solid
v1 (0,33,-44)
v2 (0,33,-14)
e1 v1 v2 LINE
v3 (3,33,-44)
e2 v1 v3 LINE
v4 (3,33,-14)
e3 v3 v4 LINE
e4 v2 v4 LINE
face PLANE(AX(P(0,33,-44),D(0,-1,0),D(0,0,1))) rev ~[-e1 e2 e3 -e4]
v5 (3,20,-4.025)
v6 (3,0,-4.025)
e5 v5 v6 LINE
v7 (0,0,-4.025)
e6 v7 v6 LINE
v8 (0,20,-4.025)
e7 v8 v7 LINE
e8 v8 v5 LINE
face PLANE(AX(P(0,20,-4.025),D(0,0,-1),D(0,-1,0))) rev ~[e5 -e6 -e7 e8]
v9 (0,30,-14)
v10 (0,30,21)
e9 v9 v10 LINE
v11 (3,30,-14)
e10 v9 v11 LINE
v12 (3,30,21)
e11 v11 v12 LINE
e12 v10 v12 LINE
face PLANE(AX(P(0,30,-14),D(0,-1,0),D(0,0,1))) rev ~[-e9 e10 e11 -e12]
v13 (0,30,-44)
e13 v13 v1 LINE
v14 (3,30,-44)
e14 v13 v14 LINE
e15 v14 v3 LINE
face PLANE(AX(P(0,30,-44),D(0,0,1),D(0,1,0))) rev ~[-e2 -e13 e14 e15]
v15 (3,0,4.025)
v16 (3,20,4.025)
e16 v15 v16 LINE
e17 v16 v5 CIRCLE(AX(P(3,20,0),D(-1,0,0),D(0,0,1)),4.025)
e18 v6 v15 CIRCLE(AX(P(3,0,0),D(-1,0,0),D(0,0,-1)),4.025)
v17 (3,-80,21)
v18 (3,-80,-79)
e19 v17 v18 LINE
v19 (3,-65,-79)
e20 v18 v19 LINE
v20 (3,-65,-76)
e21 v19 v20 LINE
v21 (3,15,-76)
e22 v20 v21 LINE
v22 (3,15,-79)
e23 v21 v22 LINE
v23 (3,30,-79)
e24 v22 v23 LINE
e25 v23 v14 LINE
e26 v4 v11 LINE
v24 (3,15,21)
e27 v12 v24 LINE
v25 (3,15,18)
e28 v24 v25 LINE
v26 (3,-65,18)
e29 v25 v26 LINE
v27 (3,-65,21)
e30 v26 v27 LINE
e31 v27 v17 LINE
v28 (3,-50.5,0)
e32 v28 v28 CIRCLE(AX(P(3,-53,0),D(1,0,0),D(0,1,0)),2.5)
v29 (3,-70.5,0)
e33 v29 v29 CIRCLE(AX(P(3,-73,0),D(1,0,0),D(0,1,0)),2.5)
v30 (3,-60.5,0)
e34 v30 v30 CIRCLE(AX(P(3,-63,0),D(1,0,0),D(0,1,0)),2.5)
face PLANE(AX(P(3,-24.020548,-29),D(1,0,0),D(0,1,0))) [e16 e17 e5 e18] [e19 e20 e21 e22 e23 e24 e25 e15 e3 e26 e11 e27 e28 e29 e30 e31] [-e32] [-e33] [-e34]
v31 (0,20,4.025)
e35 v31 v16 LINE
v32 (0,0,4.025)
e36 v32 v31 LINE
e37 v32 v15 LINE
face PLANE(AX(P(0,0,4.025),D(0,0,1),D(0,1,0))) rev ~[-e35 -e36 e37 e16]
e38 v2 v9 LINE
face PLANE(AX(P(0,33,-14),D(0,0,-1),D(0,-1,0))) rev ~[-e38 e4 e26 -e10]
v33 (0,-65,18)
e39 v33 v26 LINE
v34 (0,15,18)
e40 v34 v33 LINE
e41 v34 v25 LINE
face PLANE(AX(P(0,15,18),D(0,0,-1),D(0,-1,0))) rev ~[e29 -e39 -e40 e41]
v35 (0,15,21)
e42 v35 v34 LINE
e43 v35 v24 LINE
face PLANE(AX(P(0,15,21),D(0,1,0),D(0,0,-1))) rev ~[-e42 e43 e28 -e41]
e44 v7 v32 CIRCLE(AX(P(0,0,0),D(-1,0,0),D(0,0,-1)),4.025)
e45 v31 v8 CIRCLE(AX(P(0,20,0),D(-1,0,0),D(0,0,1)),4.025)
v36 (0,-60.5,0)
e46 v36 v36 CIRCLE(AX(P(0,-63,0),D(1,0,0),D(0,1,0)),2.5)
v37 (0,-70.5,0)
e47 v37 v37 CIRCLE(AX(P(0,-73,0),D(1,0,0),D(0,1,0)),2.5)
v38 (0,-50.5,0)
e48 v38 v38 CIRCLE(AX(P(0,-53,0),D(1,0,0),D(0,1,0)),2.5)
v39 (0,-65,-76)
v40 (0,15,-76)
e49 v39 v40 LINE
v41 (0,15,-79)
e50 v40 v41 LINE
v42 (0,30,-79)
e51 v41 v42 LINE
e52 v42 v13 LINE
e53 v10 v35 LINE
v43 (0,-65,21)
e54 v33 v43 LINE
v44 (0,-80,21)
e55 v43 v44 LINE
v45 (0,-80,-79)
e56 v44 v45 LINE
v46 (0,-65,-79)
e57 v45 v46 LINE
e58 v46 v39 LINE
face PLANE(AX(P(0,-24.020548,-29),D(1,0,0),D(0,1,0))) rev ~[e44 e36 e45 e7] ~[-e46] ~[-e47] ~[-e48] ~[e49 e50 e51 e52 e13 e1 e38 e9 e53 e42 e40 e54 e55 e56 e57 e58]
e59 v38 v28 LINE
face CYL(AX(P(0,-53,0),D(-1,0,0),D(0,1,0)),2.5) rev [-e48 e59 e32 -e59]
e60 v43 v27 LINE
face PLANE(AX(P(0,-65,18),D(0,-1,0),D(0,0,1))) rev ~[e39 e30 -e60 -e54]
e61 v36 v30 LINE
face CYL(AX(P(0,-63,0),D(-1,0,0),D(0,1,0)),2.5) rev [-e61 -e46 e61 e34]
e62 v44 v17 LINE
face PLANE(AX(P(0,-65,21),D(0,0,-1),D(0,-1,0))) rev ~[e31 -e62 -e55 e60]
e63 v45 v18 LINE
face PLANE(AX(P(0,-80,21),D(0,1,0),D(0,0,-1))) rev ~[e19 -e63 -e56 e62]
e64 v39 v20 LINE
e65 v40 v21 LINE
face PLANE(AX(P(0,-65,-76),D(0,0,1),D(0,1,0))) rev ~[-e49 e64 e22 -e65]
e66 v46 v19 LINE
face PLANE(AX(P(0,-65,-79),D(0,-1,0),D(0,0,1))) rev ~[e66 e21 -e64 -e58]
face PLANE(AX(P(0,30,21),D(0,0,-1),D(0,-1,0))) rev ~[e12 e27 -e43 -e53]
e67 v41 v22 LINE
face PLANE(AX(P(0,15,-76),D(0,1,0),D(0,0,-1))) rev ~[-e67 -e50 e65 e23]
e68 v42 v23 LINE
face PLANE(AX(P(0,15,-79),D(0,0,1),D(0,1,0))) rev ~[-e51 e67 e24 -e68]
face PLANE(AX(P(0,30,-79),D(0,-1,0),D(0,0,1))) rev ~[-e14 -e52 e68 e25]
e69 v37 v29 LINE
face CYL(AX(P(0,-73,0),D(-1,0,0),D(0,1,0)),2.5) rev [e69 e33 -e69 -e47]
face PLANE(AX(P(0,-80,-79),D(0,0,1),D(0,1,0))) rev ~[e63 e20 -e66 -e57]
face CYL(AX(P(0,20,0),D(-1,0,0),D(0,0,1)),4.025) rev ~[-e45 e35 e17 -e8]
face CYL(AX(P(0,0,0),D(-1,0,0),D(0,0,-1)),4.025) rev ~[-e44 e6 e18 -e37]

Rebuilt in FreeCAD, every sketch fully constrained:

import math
import FreeCAD as App
import Part
import Sketcher


def add_polygon(sketch, points):
    """Adds a closed chain of lines whose ends are joined by coincident constraints."""
    first, n = sketch.GeometryCount, len(points)
    for a, b in zip(points, points[1:] + points[:1]):
        sketch.addGeometry(Part.LineSegment(App.Vector(*a, 0), App.Vector(*b, 0)), False)
    for i in range(n):
        sketch.addConstraint(Sketcher.Constraint("Coincident", first + i, 2, first + (i + 1) % n, 1))

doc = App.newDocument("Part")
body = doc.addObject("PartDesign::Body", "Body")

# Sketch on YZ plane
sketch1 = doc.addObject("Sketcher::SketchObject", "Sketch")
body.addObject(sketch1)
sketch1.AttachmentSupport = (doc.YZ_Plane, [""])
sketch1.MapMode = "FlatFace"
add_polygon(sketch1, [(30, -14), (30, 21), (15, 21), (15, 18), (-65, 18), (-65, 21), (-80, 21), (-80, -79), (-65, -79), (-65, -76), (15, -76), (15, -79), (30, -79), (30, -44), (33, -44), (33, -14)])  # lines 0-15
sketch1.addGeometry(Part.Circle(App.Vector(-73, 0, 0), App.Vector(0, 0, 1), 2.5), False)  # 16
sketch1.addGeometry(Part.Circle(App.Vector(-63, 0, 0), App.Vector(0, 0, 1), 2.5), False)  # 17
sketch1.addGeometry(Part.Circle(App.Vector(-53, 0, 0), App.Vector(0, 0, 1), 2.5), False)  # 18
sketch1.addGeometry(Part.ArcOfCircle(Part.Circle(App.Vector(0, 0, 0), App.Vector(0, 0, 1), 4), math.radians(90), math.radians(270)), False)  # 19
sketch1.addGeometry(Part.LineSegment(App.Vector(0, 4, 0), App.Vector(20, 4, 0)), False)  # 20
sketch1.addGeometry(Part.ArcOfCircle(Part.Circle(App.Vector(20, 0, 0), App.Vector(0, 0, 1), 4), math.radians(-90), math.radians(90)), False)  # 21
sketch1.addGeometry(Part.LineSegment(App.Vector(20, -4, 0), App.Vector(0, -4, 0)), False)  # 22
sketch1.addConstraint(Sketcher.Constraint("Tangent", 19, 1, 20, 1))
sketch1.addConstraint(Sketcher.Constraint("Tangent", 20, 2, 21, 2))
sketch1.addConstraint(Sketcher.Constraint("Tangent", 21, 1, 22, 1))
sketch1.addConstraint(Sketcher.Constraint("Tangent", 22, 2, 19, 2))
sketch1.addConstraint(Sketcher.Constraint("Vertical", 0))
sketch1.addConstraint(Sketcher.Constraint("Horizontal", 1))
sketch1.addConstraint(Sketcher.Constraint("Vertical", 2))
sketch1.addConstraint(Sketcher.Constraint("Horizontal", 3))
sketch1.addConstraint(Sketcher.Constraint("Vertical", 4))
sketch1.addConstraint(Sketcher.Constraint("Horizontal", 5))
sketch1.addConstraint(Sketcher.Constraint("Vertical", 6))
sketch1.addConstraint(Sketcher.Constraint("Horizontal", 7))
sketch1.addConstraint(Sketcher.Constraint("Vertical", 8))
sketch1.addConstraint(Sketcher.Constraint("Horizontal", 9))
sketch1.addConstraint(Sketcher.Constraint("Vertical", 10))
sketch1.addConstraint(Sketcher.Constraint("Horizontal", 11))
sketch1.addConstraint(Sketcher.Constraint("Vertical", 12))
sketch1.addConstraint(Sketcher.Constraint("Horizontal", 13))
sketch1.addConstraint(Sketcher.Constraint("Vertical", 14))
sketch1.addConstraint(Sketcher.Constraint("Horizontal", 15))
sketch1.addConstraint(Sketcher.Constraint("Horizontal", 20))
sketch1.addConstraint(Sketcher.Constraint("Horizontal", 22))
sketch1.addConstraint(Sketcher.Constraint("Coincident", 19, 3, -1, 1))
sketch1.addConstraint(Sketcher.Constraint("Equal", 16, 17))
sketch1.addConstraint(Sketcher.Constraint("Equal", 17, 18))
sketch1.addConstraint(Sketcher.Constraint("PointOnObject", 16, 3, -1))
sketch1.addConstraint(Sketcher.Constraint("PointOnObject", 17, 3, -1))
sketch1.addConstraint(Sketcher.Constraint("PointOnObject", 18, 3, -1))
sketch1.addConstraint(Sketcher.Constraint("Horizontal", 1, 2, 4, 2))
sketch1.addConstraint(Sketcher.Constraint("Horizontal", 7, 2, 10, 2))
sketch1.addConstraint(Sketcher.Constraint("Vertical", 4, 2, 7, 2))
sketch1.addConstraint(Sketcher.Constraint("Vertical", 2, 2, 9, 2))
sketch1.addConstraint(Sketcher.Constraint("Vertical", 0, 2, 11, 2))
sketch1.addConstraint(Sketcher.Constraint("Equal", 1, 5))
sketch1.addConstraint(Sketcher.Constraint("Equal", 15, 2))
sketch1.addConstraint(Sketcher.Constraint("Equal", 4, 8))
sketch1.addConstraint(Sketcher.Constraint("Equal", 0, 12))
sketch1.addConstraint(Sketcher.Constraint("Diameter", 16, 5.0))
sketch1.addConstraint(Sketcher.Constraint("DistanceX", 1, 2, 1, 1, 15.0))
sketch1.addConstraint(Sketcher.Constraint("DistanceX", 3, 2, 3, 1, 80.0))
sketch1.addConstraint(Sketcher.Constraint("DistanceX", 13, 1, 13, 2, 3.0))
sketch1.addConstraint(Sketcher.Constraint("DistanceX", 20, 1, 20, 2, 20.0))
sketch1.addConstraint(Sketcher.Constraint("DistanceY", 0, 1, 0, 2, 35.0))
sketch1.addConstraint(Sketcher.Constraint("DistanceY", 6, 2, 6, 1, 100.0))
sketch1.addConstraint(Sketcher.Constraint("DistanceX", 16, 3, -1, 1, 73.0))
sketch1.addConstraint(Sketcher.Constraint("DistanceX", 17, 3, -1, 1, 63.0))
sketch1.addConstraint(Sketcher.Constraint("DistanceX", 18, 3, -1, 1, 53.0))
sketch1.addConstraint(Sketcher.Constraint("DistanceX", -1, 1, 0, 2, 30.0))
sketch1.addConstraint(Sketcher.Constraint("DistanceY", -1, 1, 0, 2, 21.0))
sketch1.addConstraint(Sketcher.Constraint("Radius", 19, 4.025))
pad1 = doc.addObject("PartDesign::Pad", "Pad")
body.addObject(pad1)
pad1.Profile = sketch1
pad1.Length = 3

doc.recompute()
